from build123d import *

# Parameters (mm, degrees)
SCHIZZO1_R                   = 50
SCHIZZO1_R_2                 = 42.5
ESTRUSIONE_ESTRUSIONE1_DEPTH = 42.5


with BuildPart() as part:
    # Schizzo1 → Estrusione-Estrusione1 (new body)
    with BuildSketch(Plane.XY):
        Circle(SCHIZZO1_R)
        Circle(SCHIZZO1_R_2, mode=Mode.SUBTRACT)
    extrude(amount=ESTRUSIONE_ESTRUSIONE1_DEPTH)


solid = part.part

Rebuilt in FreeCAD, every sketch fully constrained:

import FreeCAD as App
import Part
import Sketcher
Q = App.Units.Quantity

doc = App.newDocument("Part")
body = doc.addObject("PartDesign::Body", "Body")

sketch1 = doc.addObject("Sketcher::SketchObject", "Sketch")
body.addObject(sketch1)
sketch1.AttachmentSupport = (doc.XY_Plane, [""])
sketch1.MapMode = "FlatFace"
sketch1.addGeometry(Part.Circle(App.Vector(0, 0, 0), App.Vector(0, 0, 1), 50), False)
sketch1.addGeometry(Part.Circle(App.Vector(0, 0, 0), App.Vector(0, 0, 1), 42.5), False)
sketch1.addConstraint(Sketcher.Constraint("Coincident", 0, 3, -1, 1))
sketch1.addConstraint(Sketcher.Constraint("Coincident", 1, 3, -1, 1))
sketch1.addConstraint(Sketcher.Constraint("Diameter", 0, Q("100 mm")))
sketch1.addConstraint(Sketcher.Constraint("Diameter", 1, Q("85 mm")))
pad1 = doc.addObject("PartDesign::Pad", "Pad")
body.addObject(pad1)
pad1.Profile = sketch1
pad1.Length = 42.5

doc.recompute()
